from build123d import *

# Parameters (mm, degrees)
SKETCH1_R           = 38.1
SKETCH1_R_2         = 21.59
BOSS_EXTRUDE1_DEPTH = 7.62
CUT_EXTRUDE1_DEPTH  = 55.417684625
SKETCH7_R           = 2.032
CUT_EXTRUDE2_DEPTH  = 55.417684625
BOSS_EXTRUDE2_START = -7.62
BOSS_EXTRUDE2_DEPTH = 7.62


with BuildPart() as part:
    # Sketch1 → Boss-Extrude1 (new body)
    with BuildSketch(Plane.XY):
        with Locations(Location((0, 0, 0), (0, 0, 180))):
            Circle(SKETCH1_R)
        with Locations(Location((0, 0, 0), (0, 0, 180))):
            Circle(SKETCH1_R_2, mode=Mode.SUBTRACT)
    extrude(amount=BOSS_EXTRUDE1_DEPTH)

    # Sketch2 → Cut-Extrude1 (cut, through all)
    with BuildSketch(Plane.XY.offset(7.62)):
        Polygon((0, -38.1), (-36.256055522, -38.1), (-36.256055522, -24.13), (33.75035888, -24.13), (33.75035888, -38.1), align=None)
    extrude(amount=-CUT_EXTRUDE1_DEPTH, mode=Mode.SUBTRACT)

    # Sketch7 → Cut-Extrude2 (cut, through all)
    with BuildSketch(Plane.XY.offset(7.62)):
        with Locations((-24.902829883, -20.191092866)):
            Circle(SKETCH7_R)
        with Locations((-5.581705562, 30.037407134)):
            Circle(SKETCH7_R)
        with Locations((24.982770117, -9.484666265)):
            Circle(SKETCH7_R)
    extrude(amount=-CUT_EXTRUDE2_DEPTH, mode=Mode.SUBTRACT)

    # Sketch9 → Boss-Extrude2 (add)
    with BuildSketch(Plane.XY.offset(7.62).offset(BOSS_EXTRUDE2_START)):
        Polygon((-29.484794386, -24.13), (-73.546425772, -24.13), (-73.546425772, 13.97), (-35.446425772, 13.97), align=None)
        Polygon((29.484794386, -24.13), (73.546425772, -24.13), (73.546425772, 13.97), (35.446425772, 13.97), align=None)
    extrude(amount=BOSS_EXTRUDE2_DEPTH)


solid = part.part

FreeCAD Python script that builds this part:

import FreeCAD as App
import Part
import Sketcher

V = App.Vector
Q = App.Units.Quantity

doc = App.newDocument("Part")
body = doc.addObject("PartDesign::Body", "Body")

# Sketch on XY plane
sketch1 = body.newObject("Sketcher::SketchObject", "Sketch")
sketch1.AttachmentSupport = (doc.getObject("XY_Plane"), [""])
sketch1.MapMode = "FlatFace"
sketch1.addGeometry([
    Part.Circle(V(0, 0, 0), V(0, 0, 1), 38.1),
    Part.Circle(V(0, 0, 0), V(0, 0, 1), 21.59),
], False)
sketch1.addConstraint([
    Sketcher.Constraint("Coincident", 0, 3, -1, 1),
    Sketcher.Constraint("Coincident", 1, 3, -1, 1),
    Sketcher.Constraint("Diameter", 0, Q("3 in")),
    Sketcher.Constraint("Diameter", 1, Q("1.7 in")),
])
pad1 = body.newObject("PartDesign::Pad", "Pad")
pad1.Profile = sketch1
pad1.Length = Q("0.3 in")

# Sketch on XY plane
sketch2 = body.newObject("Sketcher::SketchObject", "Sketch001")
sketch2.AttachmentSupport = (doc.getObject("XY_Plane"), [""])
sketch2.MapMode = "FlatFace"
sketch2.AttachmentOffset = App.Placement(V(0, 0, 0.3 * 25.4), App.Rotation())
sketch2.addGeometry([
    Part.LineSegment(V(-36.256056, -38.1, 0), V(33.750359, -38.1, 0)),
    Part.LineSegment(V(33.750359, -38.1, 0), V(33.750359, -24.13, 0)),
    Part.LineSegment(V(33.750359, -24.13, 0), V(-36.256056, -24.13, 0)),
    Part.LineSegment(V(-36.256056, -24.13, 0), V(-36.256056, -38.1, 0)),
], False)
sketch2.addConstraint([
    Sketcher.Constraint("Coincident", 0, 2, 1, 1),
    Sketcher.Constraint("Coincident", 1, 2, 2, 1),
    Sketcher.Constraint("Coincident", 2, 2, 3, 1),
    Sketcher.Constraint("Coincident", 3, 2, 0, 1),
    Sketcher.Constraint("Horizontal", 0),
    Sketcher.Constraint("Vertical", 1),
    Sketcher.Constraint("Horizontal", 2),
    Sketcher.Constraint("Vertical", 3),
    Sketcher.Constraint("DistanceY", 1, 1, 1, 2, Q("0.55 in")),
    Sketcher.Constraint("DistanceY", 0, 2, -1, 1, Q("1.5 in")),
    Sketcher.Constraint("DistanceX", 0, 1, 0, 2, 70.006414),
    Sketcher.Constraint("DistanceX", -1, 1, 0, 2, 33.750359),
])
pocket1 = body.newObject("PartDesign::Pocket", "Pocket")
pocket1.Profile = sketch2
pocket1.Type = "ThroughAll"

# Sketch on XY plane
sketch3 = body.newObject("Sketcher::SketchObject", "Sketch002")
sketch3.AttachmentSupport = (doc.getObject("XY_Plane"), [""])
sketch3.MapMode = "FlatFace"
sketch3.AttachmentOffset = App.Placement(V(0, 0, 0.3 * 25.4), App.Rotation())
sketch3.addGeometry([
    Part.Circle(V(-24.90283, -20.191093, 0), V(0, 0, 1), 2.032),
    Part.Circle(V(-5.581706, 30.037407, 0), V(0, 0, 1), 2.032),
    Part.Circle(V(24.98277, -9.484666, 0), V(0, 0, 1), 2.032),
], False)
sketch3.addConstraint([
    Sketcher.Constraint("Equal", 0, 1),
    Sketcher.Constraint("Equal", 1, 2),
    Sketcher.Constraint("Diameter", 0, Q("0.16 in")),
    Sketcher.Constraint("DistanceX", 0, 3, 2, 3, Q("1.964 in")),
    Sketcher.Constraint("DistanceY", 0, 3, 1, 3, Q("1.9775 in")),
    Sketcher.Constraint("DistanceX", 0, 3, -1, 1, 24.90283),
    Sketcher.Constraint("DistanceY", 0, 3, -1, 1, 20.191093),
    Sketcher.Constraint("DistanceX", 1, 3, -1, 1, 5.581706),
    Sketcher.Constraint("DistanceY", 2, 3, -1, 1, 9.484666),
])
pocket2 = body.newObject("PartDesign::Pocket", "Pocket001")
pocket2.Profile = sketch3
pocket2.Type = "ThroughAll"

# Sketch on XY plane
sketch4 = body.newObject("Sketcher::SketchObject", "Sketch003")
sketch4.AttachmentSupport = (doc.getObject("XY_Plane"), [""])
sketch4.MapMode = "FlatFace"
sketch4.addGeometry([
    Part.LineSegment(V(-73.546426, -24.13, 0), V(-29.484794, -24.13, 0)),  # 0
    Part.LineSegment(V(-29.484794, -24.13, 0), V(-35.446426, 13.97, 0)),  # 1
    Part.LineSegment(V(-35.446426, 13.97, 0), V(-73.546426, 13.97, 0)),  # 2
    Part.LineSegment(V(-73.546426, 13.97, 0), V(-73.546426, -24.13, 0)),  # 3
    Part.LineSegment(V(29.484794, -24.13, 0), V(73.546426, -24.13, 0)),  # 4
    Part.LineSegment(V(73.546426, -24.13, 0), V(73.546426, 13.97, 0)),  # 5
    Part.LineSegment(V(73.546426, 13.97, 0), V(35.446426, 13.97, 0)),  # 6
    Part.LineSegment(V(35.446426, 13.97, 0), V(29.484794, -24.13, 0)),  # 7
], False)
sketch4.addConstraint([
    Sketcher.Constraint("Coincident", 0, 2, 1, 1),
    Sketcher.Constraint("Coincident", 1, 2, 2, 1),
    Sketcher.Constraint("Coincident", 2, 2, 3, 1),
    Sketcher.Constraint("Coincident", 3, 2, 0, 1),
    Sketcher.Constraint("Coincident", 4, 2, 5, 1),
    Sketcher.Constraint("Coincident", 5, 2, 6, 1),
    Sketcher.Constraint("Coincident", 6, 2, 7, 1),
    Sketcher.Constraint("Coincident", 7, 2, 4, 1),
    Sketcher.Constraint("Horizontal", 0),
    Sketcher.Constraint("Horizontal", 2),
    Sketcher.Constraint("Vertical", 3),
    Sketcher.Constraint("Horizontal", 4),
    Sketcher.Constraint("Vertical", 5),
    Sketcher.Constraint("Horizontal", 6),
    Sketcher.Constraint("Symmetric", 3, 2, 4, 2, -2),
    Sketcher.Constraint("Symmetric", 1, 2, 6, 2, -2),
    Sketcher.Constraint("Equal", 0, 4),
    Sketcher.Constraint("Equal", 6, 3),
    Sketcher.Constraint("DistanceX", 2, 2, 2, 1, Q("1.5 in")),
    Sketcher.Constraint("DistanceY", 0, 2, -1, 1, Q("0.95 in")),
    Sketcher.Constraint("DistanceX", 0, 1, 0, 2, 44.061631),
    Sketcher.Constraint("DistanceX", 0, 2, 4, 2, 103.03122),
])
pad2 = body.newObject("PartDesign::Pad", "Pad001")
pad2.Profile = sketch4
pad2.Length = Q("0.3 in")

doc.recompute()
